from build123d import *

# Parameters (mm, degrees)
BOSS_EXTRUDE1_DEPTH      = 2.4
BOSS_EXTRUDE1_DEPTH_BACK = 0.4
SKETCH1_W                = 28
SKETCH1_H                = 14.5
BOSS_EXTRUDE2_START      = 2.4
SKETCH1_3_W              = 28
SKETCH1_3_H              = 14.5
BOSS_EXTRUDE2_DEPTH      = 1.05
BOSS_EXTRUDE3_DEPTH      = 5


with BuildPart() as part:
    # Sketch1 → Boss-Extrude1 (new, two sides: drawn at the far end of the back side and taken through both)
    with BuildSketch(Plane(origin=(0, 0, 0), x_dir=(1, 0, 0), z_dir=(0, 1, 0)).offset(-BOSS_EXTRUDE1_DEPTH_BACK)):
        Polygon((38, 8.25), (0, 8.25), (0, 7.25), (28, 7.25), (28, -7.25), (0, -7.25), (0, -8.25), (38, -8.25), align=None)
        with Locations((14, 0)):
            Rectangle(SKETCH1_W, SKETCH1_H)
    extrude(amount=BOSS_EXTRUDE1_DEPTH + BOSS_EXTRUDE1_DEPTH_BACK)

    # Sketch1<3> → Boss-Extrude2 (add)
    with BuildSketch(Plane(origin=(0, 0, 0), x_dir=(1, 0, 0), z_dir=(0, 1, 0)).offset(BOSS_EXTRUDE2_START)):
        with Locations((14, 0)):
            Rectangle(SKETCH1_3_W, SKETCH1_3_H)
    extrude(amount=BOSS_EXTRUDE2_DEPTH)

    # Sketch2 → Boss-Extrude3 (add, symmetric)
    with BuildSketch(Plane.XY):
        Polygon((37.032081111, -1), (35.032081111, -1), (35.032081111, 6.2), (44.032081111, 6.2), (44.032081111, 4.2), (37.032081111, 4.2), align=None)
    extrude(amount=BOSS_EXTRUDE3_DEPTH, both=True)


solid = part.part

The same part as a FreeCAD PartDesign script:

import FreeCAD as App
import Part
import Sketcher
from FreeCAD import Vector

doc = App.newDocument("Part")
params = doc.addObject("Spreadsheet::Sheet", "Params")
for row, (alias, value) in enumerate([
    ("sketch1_width", "38 mm"),
    ("sketch1_height", "16.5 mm"),
    ("pad1_length", "2.4 mm"),
    ("pad1_length2", "0.4 mm"),
    ("sketch2_width", "28 mm"),
    ("sketch2_height", "14.5 mm"),
    ("pad2_length", "1.05 mm"),
    ("sketch3_width", "2 mm"),
    ("sketch3_width2", "7 mm"),
    ("sketch3_height", "5.2 mm"),
    ("pad3_length", "10 mm"),
], start=1):
    params.set(f"A{row}", alias)
    params.set(f"B{row}", "=" + value)
    params.setAlias(f"B{row}", alias)

body = doc.addObject("PartDesign::Body", "Body")

# Sketch on XZ plane
sketch1 = body.newObject("Sketcher::SketchObject", "Sketch")
sketch1.AttachmentSupport = (doc.getObject("XZ_Plane"), [""])
sketch1.MapMode = "FlatFace"
sketch1.addGeometry([
    Part.LineSegment(Vector(38, -8.25, 0), Vector(0, -8.25, 0)),
    Part.LineSegment(Vector(0, -8.25, 0), Vector(0, 8.25, 0)),
    Part.LineSegment(Vector(0, 8.25, 0), Vector(38, 8.25, 0)),
    Part.LineSegment(Vector(38, 8.25, 0), Vector(38, -8.25, 0)),
], False)
sketch1.addConstraint([
    Sketcher.Constraint("Coincident", 0, 2, 1, 1),
    Sketcher.Constraint("Coincident", 1, 2, 2, 1),
    Sketcher.Constraint("Coincident", 2, 2, 3, 1),
    Sketcher.Constraint("Coincident", 3, 2, 0, 1),
    Sketcher.Constraint("Horizontal", 0),
    Sketcher.Constraint("Vertical", 1),
    Sketcher.Constraint("Horizontal", 2),
    Sketcher.Constraint("Vertical", 3),
    Sketcher.Constraint("Symmetric", 0, 2, 1, 2, -1, 1),
    Sketcher.Constraint("DistanceX", 0, 2, 0, 1, 38.0),
    Sketcher.Constraint("DistanceY", 1, 1, 1, 2, 16.5),
])
sketch1.setExpression("Constraints[9]", "Params.sketch1_width")
sketch1.setExpression("Constraints[10]", "Params.sketch1_height")
pad1 = body.newObject("PartDesign::Pad", "Pad")
pad1.Profile = sketch1
pad1.Type = "TwoLengths"
pad1.setExpression("Length", "Params.pad1_length")
pad1.setExpression("Length2", "Params.pad1_length2")
pad1.Reversed = True

# Sketch on XZ plane
sketch2 = body.newObject("Sketcher::SketchObject", "Sketch001")
sketch2.AttachmentSupport = (doc.getObject("XZ_Plane"), [""])
sketch2.MapMode = "FlatFace"
sketch2.AttachmentOffset = App.Placement(Vector(0, 0, -2.4), App.Rotation())
sketch2.addGeometry([
    Part.LineSegment(Vector(0, -7.25, 0), Vector(0, 7.25, 0)),
    Part.LineSegment(Vector(0, 7.25, 0), Vector(28, 7.25, 0)),
    Part.LineSegment(Vector(28, 7.25, 0), Vector(28, -7.25, 0)),
    Part.LineSegment(Vector(28, -7.25, 0), Vector(0, -7.25, 0)),
], False)
sketch2.addConstraint([
    Sketcher.Constraint("Coincident", 0, 2, 1, 1),
    Sketcher.Constraint("Coincident", 1, 2, 2, 1),
    Sketcher.Constraint("Coincident", 2, 2, 3, 1),
    Sketcher.Constraint("Coincident", 3, 2, 0, 1),
    Sketcher.Constraint("Vertical", 0),
    Sketcher.Constraint("Horizontal", 1),
    Sketcher.Constraint("Vertical", 2),
    Sketcher.Constraint("Horizontal", 3),
    Sketcher.Constraint("Symmetric", 0, 2, 3, 2, -1, 1),
    Sketcher.Constraint("DistanceX", 1, 1, 1, 2, 28.0),
    Sketcher.Constraint("DistanceY", 0, 1, 0, 2, 14.5),
])
sketch2.setExpression("Constraints[9]", "Params.sketch2_width")
sketch2.setExpression("Constraints[10]", "Params.sketch2_height")
pad2 = body.newObject("PartDesign::Pad", "Pad001")
pad2.Profile = sketch2
pad2.setExpression("Length", "Params.pad2_length")
pad2.Reversed = True

# Sketch on XY plane
sketch3 = body.newObject("Sketcher::SketchObject", "Sketch002")
sketch3.AttachmentSupport = (doc.getObject("XY_Plane"), [""])
sketch3.MapMode = "FlatFace"
sketch3.addGeometry([
    Part.LineSegment(Vector(35.032081, -1, 0), Vector(37.032081, -1, 0)),  # 0
    Part.LineSegment(Vector(37.032081, -1, 0), Vector(37.032081, 4.2, 0)),  # 1
    Part.LineSegment(Vector(37.032081, 4.2, 0), Vector(44.032081, 4.2, 0)),  # 2
    Part.LineSegment(Vector(44.032081, 4.2, 0), Vector(44.032081, 6.2, 0)),  # 3
    Part.LineSegment(Vector(44.032081, 6.2, 0), Vector(35.032081, 6.2, 0)),  # 4
    Part.LineSegment(Vector(35.032081, 6.2, 0), Vector(35.032081, -1, 0)),  # 5
], False)
sketch3.addConstraint([
    Sketcher.Constraint("Coincident", 0, 2, 1, 1),
    Sketcher.Constraint("Coincident", 1, 2, 2, 1),
    Sketcher.Constraint("Coincident", 2, 2, 3, 1),
    Sketcher.Constraint("Coincident", 3, 2, 4, 1),
    Sketcher.Constraint("Coincident", 4, 2, 5, 1),
    Sketcher.Constraint("Coincident", 5, 2, 0, 1),
    Sketcher.Constraint("Horizontal", 0),
    Sketcher.Constraint("Vertical", 1),
    Sketcher.Constraint("Horizontal", 2),
    Sketcher.Constraint("Vertical", 3),
    Sketcher.Constraint("Horizontal", 4),
    Sketcher.Constraint("Vertical", 5),
    Sketcher.Constraint("Equal", 0, 3),
    Sketcher.Constraint("DistanceX", 0, 1, 0, 2, 2.0),
    Sketcher.Constraint("DistanceX", 2, 1, 2, 2, 7.0),
    Sketcher.Constraint("DistanceY", 1, 1, 1, 2, 5.2),
    Sketcher.Constraint("DistanceY", 0, 2, -1, 1, 1.0),
    Sketcher.Constraint("DistanceX", -1, 1, 0, 2, 37.032081),
])
sketch3.setExpression("Constraints[13]", "Params.sketch3_width")
sketch3.setExpression("Constraints[14]", "Params.sketch3_width2")
sketch3.setExpression("Constraints[15]", "Params.sketch3_height")
pad3 = body.newObject("PartDesign::Pad", "Pad002")
pad3.Profile = sketch3
pad3.setExpression("Length", "Params.pad3_length")
pad3.Midplane = True

doc.recompute()
